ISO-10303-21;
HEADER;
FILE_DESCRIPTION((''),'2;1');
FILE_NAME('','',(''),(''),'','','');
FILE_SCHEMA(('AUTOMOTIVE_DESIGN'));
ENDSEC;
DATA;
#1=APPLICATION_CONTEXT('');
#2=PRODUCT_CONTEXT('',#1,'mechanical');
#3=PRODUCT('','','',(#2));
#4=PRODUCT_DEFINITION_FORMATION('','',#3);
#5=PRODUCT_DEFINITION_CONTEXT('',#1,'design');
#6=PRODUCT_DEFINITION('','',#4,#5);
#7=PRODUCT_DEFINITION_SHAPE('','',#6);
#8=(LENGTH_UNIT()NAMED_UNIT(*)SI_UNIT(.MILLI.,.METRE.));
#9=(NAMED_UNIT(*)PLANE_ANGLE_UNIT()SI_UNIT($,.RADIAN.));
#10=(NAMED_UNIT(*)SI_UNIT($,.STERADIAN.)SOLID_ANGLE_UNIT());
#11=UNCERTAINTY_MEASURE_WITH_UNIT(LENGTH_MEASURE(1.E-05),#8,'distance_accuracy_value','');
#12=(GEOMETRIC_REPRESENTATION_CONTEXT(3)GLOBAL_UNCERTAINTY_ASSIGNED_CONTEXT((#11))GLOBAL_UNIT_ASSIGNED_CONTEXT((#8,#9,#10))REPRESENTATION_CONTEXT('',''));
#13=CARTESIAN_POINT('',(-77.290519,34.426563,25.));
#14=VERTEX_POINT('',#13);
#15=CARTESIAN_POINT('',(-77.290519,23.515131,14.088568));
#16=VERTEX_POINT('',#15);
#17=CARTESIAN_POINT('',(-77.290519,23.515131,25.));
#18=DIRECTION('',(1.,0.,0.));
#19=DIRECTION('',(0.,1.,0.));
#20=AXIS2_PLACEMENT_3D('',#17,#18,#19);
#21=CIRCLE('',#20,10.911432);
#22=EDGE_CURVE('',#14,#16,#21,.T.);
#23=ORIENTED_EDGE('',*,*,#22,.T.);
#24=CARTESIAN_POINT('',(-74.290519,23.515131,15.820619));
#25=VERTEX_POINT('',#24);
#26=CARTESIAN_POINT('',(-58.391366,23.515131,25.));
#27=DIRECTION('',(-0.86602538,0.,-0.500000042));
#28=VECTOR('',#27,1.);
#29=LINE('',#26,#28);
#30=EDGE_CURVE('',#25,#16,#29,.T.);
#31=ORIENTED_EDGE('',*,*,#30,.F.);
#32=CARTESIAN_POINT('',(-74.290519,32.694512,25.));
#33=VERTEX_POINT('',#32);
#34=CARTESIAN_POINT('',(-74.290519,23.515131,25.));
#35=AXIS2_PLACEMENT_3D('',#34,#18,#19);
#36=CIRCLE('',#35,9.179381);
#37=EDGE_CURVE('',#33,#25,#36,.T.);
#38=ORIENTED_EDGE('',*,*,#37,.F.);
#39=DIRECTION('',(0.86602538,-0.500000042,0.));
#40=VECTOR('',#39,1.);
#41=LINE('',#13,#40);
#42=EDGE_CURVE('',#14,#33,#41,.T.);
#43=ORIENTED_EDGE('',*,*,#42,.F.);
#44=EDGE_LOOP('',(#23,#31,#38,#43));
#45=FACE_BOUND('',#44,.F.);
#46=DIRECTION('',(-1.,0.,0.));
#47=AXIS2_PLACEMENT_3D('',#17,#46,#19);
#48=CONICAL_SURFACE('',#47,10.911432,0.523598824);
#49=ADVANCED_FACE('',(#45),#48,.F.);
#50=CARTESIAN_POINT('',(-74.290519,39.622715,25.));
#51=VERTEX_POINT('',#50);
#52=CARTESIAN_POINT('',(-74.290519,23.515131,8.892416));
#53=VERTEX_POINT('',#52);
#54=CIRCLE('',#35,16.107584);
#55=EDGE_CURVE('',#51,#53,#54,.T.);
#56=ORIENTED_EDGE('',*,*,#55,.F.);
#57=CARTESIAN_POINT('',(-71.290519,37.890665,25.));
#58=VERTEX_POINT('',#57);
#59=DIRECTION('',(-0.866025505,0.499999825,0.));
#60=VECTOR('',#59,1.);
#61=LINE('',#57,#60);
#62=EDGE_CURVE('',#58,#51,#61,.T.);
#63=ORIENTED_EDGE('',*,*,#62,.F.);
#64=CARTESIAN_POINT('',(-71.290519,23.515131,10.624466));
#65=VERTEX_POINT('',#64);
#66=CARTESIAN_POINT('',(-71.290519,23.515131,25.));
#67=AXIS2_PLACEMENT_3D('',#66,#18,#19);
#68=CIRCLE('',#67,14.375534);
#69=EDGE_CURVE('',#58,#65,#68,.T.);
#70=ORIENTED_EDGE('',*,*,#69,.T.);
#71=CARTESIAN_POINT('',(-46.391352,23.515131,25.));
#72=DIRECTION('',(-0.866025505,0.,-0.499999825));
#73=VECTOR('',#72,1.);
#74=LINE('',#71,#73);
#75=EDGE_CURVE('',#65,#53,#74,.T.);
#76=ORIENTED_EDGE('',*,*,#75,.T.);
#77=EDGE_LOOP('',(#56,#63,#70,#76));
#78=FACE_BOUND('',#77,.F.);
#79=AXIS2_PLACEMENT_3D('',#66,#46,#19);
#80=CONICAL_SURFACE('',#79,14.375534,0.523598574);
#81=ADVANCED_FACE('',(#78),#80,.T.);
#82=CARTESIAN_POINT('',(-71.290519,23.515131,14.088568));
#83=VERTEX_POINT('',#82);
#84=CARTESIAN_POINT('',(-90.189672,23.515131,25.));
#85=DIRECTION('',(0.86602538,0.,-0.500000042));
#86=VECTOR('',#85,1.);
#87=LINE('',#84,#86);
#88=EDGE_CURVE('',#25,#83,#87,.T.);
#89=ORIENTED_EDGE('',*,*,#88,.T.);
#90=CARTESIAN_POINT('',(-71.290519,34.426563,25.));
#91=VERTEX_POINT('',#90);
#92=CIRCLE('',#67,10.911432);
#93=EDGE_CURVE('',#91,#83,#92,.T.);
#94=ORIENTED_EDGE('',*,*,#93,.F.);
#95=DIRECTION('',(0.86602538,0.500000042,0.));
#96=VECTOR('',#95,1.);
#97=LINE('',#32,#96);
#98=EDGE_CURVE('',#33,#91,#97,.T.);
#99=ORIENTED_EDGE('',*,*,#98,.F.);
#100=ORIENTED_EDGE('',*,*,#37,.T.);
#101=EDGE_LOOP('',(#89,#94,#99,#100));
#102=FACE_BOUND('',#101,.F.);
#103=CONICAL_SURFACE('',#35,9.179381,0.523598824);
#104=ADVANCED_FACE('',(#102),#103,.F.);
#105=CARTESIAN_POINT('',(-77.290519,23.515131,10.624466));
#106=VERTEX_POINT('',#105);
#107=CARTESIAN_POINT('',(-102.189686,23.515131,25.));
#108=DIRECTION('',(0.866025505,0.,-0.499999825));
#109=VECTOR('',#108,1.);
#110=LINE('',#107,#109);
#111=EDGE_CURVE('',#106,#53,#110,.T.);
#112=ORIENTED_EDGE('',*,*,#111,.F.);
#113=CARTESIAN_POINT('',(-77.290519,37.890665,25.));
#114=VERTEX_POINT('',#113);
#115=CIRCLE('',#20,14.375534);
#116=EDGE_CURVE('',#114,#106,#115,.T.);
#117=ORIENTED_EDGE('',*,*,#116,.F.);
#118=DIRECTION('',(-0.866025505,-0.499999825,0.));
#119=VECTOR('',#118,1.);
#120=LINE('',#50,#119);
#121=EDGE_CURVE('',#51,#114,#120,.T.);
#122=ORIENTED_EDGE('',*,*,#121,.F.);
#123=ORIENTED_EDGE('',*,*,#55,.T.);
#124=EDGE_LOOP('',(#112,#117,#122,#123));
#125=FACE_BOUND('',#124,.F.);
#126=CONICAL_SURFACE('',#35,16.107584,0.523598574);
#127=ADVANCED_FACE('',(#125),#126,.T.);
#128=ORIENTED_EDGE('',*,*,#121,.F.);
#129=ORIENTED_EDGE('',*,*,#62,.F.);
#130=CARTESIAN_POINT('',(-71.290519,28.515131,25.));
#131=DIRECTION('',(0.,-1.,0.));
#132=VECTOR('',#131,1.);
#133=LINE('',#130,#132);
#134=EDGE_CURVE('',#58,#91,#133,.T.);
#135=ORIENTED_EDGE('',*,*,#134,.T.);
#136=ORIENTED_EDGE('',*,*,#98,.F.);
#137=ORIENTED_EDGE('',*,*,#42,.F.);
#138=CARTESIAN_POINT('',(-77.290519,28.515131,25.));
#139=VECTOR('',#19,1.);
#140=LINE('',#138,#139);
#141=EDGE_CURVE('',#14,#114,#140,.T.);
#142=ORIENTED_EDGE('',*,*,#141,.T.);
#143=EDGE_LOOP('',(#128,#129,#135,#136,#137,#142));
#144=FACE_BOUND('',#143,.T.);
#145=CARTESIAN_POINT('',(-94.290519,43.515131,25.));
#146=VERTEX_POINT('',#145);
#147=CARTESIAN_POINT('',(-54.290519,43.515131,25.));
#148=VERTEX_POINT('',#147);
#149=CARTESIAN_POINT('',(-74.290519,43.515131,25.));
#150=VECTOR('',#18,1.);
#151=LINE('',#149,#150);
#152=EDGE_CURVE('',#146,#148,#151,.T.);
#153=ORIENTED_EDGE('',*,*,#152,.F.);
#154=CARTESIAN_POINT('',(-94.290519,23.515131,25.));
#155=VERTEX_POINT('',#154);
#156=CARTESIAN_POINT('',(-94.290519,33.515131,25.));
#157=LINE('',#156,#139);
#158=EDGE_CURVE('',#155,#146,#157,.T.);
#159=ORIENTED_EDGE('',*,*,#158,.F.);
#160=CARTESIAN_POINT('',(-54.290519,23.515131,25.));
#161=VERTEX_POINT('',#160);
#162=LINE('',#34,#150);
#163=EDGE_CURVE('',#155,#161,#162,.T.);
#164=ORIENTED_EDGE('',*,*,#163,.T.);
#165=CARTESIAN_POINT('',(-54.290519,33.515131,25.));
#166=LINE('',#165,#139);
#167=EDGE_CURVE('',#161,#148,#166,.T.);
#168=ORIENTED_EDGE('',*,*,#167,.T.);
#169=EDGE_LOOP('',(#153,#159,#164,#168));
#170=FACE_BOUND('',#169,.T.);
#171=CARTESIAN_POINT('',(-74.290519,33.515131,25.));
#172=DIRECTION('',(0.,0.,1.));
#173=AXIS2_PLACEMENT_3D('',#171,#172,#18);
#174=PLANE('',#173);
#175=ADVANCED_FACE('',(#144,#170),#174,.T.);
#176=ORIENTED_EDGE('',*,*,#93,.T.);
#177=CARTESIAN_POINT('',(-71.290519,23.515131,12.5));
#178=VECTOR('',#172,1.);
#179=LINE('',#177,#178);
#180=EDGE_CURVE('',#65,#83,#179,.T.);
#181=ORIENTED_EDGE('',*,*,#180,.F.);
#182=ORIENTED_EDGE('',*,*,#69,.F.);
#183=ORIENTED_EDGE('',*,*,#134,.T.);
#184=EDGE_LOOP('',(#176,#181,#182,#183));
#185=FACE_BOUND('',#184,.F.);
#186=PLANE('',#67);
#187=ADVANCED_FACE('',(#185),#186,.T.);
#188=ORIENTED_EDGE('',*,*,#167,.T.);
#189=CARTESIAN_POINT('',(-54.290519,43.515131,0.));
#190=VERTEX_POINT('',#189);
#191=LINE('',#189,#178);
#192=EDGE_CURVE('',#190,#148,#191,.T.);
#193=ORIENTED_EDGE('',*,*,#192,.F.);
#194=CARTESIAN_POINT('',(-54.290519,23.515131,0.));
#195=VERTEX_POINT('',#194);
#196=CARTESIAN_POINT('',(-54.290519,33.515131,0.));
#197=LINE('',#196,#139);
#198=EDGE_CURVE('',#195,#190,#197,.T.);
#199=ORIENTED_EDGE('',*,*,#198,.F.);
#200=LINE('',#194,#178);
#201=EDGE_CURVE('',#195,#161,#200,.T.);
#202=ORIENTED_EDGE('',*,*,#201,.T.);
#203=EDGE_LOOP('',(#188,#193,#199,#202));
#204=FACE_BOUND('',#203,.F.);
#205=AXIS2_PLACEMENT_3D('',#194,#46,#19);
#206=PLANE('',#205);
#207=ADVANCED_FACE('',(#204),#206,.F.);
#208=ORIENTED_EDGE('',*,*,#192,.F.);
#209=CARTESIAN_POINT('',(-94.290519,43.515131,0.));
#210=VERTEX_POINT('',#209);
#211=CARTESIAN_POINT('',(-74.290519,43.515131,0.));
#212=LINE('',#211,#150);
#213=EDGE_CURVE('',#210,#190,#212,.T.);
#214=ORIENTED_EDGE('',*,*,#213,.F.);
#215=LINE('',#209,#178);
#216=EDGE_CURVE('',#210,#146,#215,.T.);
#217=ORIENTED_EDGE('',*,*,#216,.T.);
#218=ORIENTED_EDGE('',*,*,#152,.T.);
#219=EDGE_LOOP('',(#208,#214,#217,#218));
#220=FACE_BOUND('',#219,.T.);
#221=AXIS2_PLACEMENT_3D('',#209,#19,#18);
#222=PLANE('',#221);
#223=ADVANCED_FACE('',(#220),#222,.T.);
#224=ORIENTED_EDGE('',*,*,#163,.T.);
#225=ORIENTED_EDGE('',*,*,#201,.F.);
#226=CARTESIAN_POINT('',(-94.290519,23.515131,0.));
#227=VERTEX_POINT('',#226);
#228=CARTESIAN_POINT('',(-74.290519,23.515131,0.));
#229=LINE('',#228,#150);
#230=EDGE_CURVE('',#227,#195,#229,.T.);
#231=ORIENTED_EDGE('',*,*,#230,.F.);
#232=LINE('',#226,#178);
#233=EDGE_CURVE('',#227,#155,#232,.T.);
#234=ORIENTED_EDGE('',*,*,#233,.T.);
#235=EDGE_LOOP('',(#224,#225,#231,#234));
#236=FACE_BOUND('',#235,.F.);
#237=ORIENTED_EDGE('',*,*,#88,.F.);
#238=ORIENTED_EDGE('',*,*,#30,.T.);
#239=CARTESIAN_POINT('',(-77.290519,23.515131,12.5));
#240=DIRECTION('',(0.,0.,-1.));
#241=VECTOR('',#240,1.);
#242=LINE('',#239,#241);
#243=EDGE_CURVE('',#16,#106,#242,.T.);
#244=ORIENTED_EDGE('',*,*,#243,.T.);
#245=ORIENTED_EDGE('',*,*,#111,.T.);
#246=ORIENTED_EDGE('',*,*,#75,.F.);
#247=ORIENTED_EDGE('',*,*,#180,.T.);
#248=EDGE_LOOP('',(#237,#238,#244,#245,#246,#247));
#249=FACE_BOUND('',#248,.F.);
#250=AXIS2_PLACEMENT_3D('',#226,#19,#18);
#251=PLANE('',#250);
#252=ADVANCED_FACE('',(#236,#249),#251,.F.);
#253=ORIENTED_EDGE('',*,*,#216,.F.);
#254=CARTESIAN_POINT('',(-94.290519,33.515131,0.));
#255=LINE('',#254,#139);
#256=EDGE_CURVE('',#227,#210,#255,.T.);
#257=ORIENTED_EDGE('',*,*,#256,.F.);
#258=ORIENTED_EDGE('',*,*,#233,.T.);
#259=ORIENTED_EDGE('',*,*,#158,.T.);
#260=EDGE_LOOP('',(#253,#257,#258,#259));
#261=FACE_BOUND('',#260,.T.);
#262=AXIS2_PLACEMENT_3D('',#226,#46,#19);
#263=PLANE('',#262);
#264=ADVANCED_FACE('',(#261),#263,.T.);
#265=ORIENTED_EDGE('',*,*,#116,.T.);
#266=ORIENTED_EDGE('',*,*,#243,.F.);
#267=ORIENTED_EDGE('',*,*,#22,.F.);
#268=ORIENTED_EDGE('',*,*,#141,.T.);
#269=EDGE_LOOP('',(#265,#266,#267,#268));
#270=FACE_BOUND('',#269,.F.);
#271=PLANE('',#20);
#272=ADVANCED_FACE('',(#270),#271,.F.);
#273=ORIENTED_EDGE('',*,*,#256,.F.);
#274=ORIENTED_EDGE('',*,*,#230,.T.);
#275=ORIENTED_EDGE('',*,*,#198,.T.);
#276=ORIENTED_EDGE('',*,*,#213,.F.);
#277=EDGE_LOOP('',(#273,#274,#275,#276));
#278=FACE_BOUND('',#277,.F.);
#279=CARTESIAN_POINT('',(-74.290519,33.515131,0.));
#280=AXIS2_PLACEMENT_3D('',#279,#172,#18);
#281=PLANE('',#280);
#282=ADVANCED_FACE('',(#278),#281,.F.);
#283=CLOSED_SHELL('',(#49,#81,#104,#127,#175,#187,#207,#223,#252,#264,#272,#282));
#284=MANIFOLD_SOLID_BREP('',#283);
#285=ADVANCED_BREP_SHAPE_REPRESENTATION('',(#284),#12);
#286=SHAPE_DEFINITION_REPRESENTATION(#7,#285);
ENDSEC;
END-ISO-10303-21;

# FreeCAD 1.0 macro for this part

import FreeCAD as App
import Part
import Sketcher
Q = App.Units.Quantity

doc = App.newDocument("Part")
params = doc.addObject("Spreadsheet::Sheet", "Params")
for row, (alias, value) in enumerate([
    ("sketch1_width", "40 mm"),
    ("sketch1_height", "20 mm"),
    ("pad1_length", "25 mm"),
    ("sketch2_width", "6 mm"),
    ("revolution_angle", "360 deg"),
], start=1):
    params.set(f"A{row}", alias)
    params.set(f"B{row}", "=" + value)
    params.setAlias(f"B{row}", alias)

body = doc.addObject("PartDesign::Body", "Body")

# Sketch on XY plane
sketch1 = body.newObject("Sketcher::SketchObject", "Sketch")
sketch1.AttachmentSupport = (doc.getObject("XY_Plane"), [""])
sketch1.MapMode = "FlatFace"
sketch1.addGeometry([
    Part.LineSegment(App.Vector(-94, 44, 0), App.Vector(-94, 24, 0)),
    Part.LineSegment(App.Vector(-94, 24, 0), App.Vector(-54, 24, 0)),
    Part.LineSegment(App.Vector(-54, 24, 0), App.Vector(-54, 44, 0)),
    Part.LineSegment(App.Vector(-54, 44, 0), App.Vector(-94, 44, 0)),
], False)
sketch1.addConstraint([
    Sketcher.Constraint("Coincident", 0, 2, 1, 1),
    Sketcher.Constraint("Coincident", 1, 2, 2, 1),
    Sketcher.Constraint("Coincident", 2, 2, 3, 1),
    Sketcher.Constraint("Coincident", 3, 2, 0, 1),
    Sketcher.Constraint("Vertical", 0),
    Sketcher.Constraint("Horizontal", 1),
    Sketcher.Constraint("Vertical", 2),
    Sketcher.Constraint("Horizontal", 3),
    Sketcher.Constraint("DistanceX", 1, 1, 1, 2, 40.0),
    Sketcher.Constraint("DistanceY", 0, 2, 0, 1, 20.0),
    Sketcher.Constraint("DistanceX", 0, 2, -1, 1, 94.290519),
    Sketcher.Constraint("DistanceY", -1, 1, 0, 2, 23.515131),
])
sketch1.setExpression("Constraints[8]", "Params.sketch1_width")
sketch1.setExpression("Constraints[9]", "Params.sketch1_height")
pad1 = body.newObject("PartDesign::Pad", "Pad")
pad1.Profile = sketch1
pad1.setExpression("Length", "Params.pad1_length")

# Sketch on XY plane
sketch2 = body.newObject("Sketcher::SketchObject", "Sketch001")
sketch2.AttachmentSupport = (doc.getObject("XY_Plane"), [""])
sketch2.MapMode = "FlatFace"
sketch2.AttachmentOffset = App.Placement(App.Vector(0, 0, 25), App.Rotation())
sketch2.addGeometry([
    Part.LineSegment(App.Vector(-71.3, 37.9, 0), App.Vector(-74.3, 39.6, 0)),  # 0
    Part.LineSegment(App.Vector(-74.3, 39.6, 0), App.Vector(-77.3, 37.9, 0)),  # 1
    Part.LineSegment(App.Vector(-77.3, 37.9, 0), App.Vector(-77.3, 34.4, 0)),  # 2
    Part.LineSegment(App.Vector(-77.3, 34.4, 0), App.Vector(-74.3, 32.7, 0)),  # 3
    Part.LineSegment(App.Vector(-74.3, 32.7, 0), App.Vector(-71.3, 34.4, 0)),  # 4
    Part.LineSegment(App.Vector(-71.3, 34.4, 0), App.Vector(-71.3, 37.9, 0)),  # 5
], False)
sketch2.addGeometry(Part.LineSegment(App.Vector(-77.3, 23.5, 0), App.Vector(-71.3, 23.5, 0)), True)  # axis
sketch2.addConstraint([
    Sketcher.Constraint("Coincident", 0, 2, 1, 1),
    Sketcher.Constraint("Coincident", 1, 2, 2, 1),
    Sketcher.Constraint("Coincident", 2, 2, 3, 1),
    Sketcher.Constraint("Coincident", 3, 2, 4, 1),
    Sketcher.Constraint("Coincident", 4, 2, 5, 1),
    Sketcher.Constraint("Coincident", 5, 2, 0, 1),
    Sketcher.Constraint("Vertical", 2),
    Sketcher.Constraint("Vertical", 5),
    Sketcher.Constraint("Horizontal", 6),
    Sketcher.Constraint("Parallel", 0, 3),
    Sketcher.Constraint("Parallel", 1, 4),
    Sketcher.Constraint("Horizontal", 2, 2, 4, 2),
    Sketcher.Constraint("Horizontal", 1, 2, 5, 2),
    Sketcher.Constraint("Vertical", 0, 2, 3, 2),
    Sketcher.Constraint("Vertical", 2, 2, 6, 1),
    Sketcher.Constraint("Vertical", 5, 2, 6, 2),
    Sketcher.Constraint("DistanceX", 6, 1, 6, 2, 6.0),
    Sketcher.Constraint("Angle", 0, Q("150.000012 deg")),
    Sketcher.Constraint("DistanceY", 2, 2, 2, 1, 3.464102),
    Sketcher.Constraint("DistanceX", 0, 2, -1, 1, 74.290519),
    Sketcher.Constraint("DistanceY", -1, 1, 6, 1, 23.515131),
    Sketcher.Constraint("DistanceY", 6, 1, 3, 2, 9.179381),
])
sketch2.setExpression("Constraints[16]", "Params.sketch2_width")
revolution = body.newObject("PartDesign::Revolution", "Revolution")
revolution.Profile = sketch2
revolution.ReferenceAxis = (sketch2, ["Axis0"])
revolution.setExpression("Angle", "Params.revolution_angle")

doc.recompute()
